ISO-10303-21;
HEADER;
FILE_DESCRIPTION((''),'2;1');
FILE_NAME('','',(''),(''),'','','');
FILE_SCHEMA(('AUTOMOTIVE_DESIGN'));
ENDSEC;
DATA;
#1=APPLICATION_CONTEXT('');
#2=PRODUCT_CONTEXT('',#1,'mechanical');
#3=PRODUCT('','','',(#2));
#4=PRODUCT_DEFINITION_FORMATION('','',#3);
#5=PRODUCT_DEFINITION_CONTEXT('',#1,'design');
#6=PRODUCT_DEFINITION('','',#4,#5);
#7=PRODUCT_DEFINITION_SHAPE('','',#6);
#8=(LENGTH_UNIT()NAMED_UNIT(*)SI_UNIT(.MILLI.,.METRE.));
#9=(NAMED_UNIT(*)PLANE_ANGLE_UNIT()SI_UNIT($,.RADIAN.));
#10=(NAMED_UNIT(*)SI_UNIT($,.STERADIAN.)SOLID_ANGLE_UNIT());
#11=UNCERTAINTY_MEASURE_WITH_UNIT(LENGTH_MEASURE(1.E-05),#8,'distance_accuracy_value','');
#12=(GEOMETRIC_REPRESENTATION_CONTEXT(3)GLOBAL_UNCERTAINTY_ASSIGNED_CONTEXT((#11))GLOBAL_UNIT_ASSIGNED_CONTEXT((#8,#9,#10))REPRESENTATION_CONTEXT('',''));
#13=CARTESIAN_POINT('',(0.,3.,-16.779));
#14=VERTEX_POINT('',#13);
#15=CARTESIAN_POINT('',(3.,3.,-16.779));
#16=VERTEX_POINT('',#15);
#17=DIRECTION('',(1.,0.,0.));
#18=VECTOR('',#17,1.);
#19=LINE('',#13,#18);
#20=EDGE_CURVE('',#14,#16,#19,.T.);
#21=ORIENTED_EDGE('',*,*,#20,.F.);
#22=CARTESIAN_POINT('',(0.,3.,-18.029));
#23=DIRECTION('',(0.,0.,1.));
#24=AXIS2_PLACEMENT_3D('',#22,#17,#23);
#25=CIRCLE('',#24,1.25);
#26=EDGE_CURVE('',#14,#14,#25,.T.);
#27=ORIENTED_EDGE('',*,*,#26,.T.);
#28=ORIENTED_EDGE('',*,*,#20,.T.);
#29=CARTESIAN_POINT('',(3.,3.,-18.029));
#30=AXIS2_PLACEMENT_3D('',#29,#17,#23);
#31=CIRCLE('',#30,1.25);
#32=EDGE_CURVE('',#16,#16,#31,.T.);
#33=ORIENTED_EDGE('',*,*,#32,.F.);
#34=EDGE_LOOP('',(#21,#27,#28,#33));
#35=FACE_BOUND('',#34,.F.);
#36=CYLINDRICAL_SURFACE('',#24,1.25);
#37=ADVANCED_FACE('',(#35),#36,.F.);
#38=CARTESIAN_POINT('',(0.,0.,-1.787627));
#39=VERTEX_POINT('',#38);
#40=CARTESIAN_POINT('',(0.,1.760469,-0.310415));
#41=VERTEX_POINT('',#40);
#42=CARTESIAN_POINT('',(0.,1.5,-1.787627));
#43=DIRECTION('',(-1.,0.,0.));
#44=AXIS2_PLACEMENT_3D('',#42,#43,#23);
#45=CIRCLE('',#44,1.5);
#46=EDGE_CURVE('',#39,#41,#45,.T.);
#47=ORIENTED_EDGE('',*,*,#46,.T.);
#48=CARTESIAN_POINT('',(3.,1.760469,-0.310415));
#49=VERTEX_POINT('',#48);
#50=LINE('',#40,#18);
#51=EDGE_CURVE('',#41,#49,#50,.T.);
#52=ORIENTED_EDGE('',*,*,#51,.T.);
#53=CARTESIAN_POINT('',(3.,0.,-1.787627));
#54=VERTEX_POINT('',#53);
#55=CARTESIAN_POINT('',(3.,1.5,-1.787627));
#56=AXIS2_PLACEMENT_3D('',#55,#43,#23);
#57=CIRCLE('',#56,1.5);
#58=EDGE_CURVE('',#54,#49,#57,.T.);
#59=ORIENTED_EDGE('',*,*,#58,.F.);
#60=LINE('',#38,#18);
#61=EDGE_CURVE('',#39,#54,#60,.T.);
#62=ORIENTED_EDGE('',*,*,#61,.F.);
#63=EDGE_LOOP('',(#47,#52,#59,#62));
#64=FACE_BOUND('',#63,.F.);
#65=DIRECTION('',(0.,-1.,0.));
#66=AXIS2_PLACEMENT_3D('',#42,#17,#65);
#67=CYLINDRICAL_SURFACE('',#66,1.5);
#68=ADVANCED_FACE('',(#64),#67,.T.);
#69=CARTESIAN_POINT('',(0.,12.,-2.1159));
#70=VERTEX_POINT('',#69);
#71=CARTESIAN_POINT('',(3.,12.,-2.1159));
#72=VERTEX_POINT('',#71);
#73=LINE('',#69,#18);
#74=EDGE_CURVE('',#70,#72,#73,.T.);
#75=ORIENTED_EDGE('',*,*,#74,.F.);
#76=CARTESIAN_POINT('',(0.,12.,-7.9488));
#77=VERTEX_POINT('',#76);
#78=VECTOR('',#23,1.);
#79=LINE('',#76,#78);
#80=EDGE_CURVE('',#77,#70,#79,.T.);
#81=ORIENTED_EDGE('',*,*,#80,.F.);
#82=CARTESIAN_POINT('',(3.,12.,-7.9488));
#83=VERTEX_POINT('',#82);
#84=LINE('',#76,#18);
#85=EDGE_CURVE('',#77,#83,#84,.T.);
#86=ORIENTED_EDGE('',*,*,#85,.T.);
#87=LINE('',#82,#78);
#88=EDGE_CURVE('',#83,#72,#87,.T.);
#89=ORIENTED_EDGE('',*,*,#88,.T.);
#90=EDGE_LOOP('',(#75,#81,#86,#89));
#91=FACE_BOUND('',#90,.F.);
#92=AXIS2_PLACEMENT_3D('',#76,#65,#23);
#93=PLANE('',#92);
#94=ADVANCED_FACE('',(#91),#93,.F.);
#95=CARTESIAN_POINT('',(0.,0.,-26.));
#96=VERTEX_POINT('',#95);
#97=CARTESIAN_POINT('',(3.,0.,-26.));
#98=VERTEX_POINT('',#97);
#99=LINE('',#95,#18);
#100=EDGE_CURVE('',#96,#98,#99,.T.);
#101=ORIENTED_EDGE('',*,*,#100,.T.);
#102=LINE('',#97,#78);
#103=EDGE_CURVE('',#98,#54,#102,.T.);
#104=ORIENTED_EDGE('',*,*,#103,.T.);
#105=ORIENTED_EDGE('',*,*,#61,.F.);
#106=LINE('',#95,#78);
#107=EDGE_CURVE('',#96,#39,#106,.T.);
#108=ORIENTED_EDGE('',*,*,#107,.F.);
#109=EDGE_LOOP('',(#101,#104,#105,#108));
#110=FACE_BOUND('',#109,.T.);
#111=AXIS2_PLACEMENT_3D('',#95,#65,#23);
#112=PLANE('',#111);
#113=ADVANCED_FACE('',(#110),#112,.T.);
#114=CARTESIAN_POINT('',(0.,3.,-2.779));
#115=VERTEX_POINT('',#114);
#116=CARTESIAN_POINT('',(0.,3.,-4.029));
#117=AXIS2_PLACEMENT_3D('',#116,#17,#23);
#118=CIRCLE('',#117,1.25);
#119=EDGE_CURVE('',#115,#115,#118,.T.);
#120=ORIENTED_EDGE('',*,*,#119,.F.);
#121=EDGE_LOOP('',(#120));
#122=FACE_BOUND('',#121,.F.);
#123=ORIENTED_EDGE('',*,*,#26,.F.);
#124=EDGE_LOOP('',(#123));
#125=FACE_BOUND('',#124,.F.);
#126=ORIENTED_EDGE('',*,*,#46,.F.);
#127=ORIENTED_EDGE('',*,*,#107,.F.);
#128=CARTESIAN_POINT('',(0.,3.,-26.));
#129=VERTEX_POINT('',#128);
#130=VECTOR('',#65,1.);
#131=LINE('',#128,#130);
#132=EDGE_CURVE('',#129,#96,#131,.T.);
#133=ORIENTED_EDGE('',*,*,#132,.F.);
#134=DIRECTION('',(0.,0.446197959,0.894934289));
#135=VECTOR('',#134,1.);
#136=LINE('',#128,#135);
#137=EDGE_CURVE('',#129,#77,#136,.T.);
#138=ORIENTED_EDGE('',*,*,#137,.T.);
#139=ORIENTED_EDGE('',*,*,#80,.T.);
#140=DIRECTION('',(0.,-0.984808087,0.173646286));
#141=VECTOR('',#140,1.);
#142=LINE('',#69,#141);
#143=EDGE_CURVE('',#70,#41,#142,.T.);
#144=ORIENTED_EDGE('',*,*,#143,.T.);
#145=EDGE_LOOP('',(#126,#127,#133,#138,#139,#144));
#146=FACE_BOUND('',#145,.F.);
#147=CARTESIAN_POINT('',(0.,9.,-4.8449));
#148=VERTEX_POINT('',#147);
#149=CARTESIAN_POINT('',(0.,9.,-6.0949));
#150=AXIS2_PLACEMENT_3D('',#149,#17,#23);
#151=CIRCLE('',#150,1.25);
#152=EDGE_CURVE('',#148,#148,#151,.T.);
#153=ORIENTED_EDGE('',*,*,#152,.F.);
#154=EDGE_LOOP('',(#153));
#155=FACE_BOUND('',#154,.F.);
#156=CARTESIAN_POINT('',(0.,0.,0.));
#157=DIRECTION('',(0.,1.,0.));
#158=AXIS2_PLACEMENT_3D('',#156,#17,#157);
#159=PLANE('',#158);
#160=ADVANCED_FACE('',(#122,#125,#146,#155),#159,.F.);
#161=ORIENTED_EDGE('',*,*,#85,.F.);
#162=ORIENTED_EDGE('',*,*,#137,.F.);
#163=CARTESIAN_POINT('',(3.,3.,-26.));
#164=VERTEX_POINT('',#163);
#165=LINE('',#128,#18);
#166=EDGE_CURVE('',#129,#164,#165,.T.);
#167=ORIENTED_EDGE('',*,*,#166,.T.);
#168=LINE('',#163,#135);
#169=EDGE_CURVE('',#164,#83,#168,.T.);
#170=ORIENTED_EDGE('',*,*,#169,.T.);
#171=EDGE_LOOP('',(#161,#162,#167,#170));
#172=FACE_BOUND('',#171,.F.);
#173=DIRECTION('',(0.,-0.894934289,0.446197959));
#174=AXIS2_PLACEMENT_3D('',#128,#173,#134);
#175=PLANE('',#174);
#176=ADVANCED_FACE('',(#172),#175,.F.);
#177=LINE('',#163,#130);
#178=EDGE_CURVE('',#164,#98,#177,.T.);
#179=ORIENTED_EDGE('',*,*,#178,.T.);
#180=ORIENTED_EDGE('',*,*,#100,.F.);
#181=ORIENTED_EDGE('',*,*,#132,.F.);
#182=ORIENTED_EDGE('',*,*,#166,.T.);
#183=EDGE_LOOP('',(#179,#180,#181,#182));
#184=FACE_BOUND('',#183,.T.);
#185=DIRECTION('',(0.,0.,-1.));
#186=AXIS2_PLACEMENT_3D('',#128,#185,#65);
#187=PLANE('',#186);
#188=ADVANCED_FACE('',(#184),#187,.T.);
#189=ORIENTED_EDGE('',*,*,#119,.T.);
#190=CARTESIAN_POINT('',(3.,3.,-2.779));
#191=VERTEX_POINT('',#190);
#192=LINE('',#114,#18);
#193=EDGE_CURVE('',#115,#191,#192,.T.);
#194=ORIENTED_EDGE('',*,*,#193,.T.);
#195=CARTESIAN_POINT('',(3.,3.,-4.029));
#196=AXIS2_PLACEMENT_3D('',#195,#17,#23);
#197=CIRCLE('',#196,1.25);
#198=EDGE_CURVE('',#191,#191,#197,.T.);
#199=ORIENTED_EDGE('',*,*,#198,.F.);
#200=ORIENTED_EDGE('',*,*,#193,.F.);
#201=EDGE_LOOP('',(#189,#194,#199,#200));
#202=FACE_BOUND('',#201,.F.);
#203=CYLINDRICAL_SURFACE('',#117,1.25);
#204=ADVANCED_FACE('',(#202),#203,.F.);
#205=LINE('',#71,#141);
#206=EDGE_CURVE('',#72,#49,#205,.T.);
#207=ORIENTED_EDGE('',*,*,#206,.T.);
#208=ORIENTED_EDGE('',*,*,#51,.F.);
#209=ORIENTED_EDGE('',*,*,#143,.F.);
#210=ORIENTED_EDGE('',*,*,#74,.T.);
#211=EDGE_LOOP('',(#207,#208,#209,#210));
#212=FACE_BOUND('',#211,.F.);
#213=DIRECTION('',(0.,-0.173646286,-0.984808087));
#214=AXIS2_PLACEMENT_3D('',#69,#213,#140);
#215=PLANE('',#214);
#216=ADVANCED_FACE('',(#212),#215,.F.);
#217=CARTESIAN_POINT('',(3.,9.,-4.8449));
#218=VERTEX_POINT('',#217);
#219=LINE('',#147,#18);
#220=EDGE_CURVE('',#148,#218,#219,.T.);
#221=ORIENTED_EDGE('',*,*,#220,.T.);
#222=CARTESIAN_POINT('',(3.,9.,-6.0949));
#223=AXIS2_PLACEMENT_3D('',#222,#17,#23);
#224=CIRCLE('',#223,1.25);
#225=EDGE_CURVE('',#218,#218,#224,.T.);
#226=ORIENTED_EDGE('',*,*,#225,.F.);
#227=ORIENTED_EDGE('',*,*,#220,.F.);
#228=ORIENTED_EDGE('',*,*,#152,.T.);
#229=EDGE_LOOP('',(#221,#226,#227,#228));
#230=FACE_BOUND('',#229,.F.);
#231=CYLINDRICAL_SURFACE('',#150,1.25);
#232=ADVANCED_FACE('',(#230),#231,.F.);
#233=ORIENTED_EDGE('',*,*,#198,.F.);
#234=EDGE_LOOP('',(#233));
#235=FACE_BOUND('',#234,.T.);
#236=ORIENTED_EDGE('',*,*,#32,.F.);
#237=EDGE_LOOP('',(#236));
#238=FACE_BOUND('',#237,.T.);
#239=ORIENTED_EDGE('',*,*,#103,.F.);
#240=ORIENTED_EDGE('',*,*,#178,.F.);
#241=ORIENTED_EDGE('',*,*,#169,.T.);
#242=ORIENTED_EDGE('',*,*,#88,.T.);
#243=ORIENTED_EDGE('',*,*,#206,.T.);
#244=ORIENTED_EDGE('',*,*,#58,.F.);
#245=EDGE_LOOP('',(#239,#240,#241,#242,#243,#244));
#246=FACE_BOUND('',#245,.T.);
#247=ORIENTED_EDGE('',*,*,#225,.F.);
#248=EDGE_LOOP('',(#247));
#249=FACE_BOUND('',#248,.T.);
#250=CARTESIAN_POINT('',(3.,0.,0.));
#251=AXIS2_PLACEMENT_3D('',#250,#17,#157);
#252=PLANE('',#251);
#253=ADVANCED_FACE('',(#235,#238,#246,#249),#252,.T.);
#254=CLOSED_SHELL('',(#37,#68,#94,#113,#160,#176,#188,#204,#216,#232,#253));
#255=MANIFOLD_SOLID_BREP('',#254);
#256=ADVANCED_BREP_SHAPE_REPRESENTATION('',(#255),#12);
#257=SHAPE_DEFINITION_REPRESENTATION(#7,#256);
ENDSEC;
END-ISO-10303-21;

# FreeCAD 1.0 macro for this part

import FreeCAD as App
import Part
import Sketcher

V = App.Vector
Q = App.Units.Quantity


def edges_at(feature, points):
    """Names of the edges that pass closest to the given points."""
    edges = feature.Shape.Edges
    near = lambda p: min(range(len(edges)), key=lambda i: edges[i].distToShape(Part.Vertex(*p))[0])
    return sorted({f"Edge{near(p) + 1}" for p in points})


def add_polygon(sketch, points):
    """Adds a closed chain of lines whose ends are joined by coincident constraints."""
    first, n = sketch.GeometryCount, len(points)
    for a, b in zip(points, points[1:] + points[:1]):
        sketch.addGeometry(Part.LineSegment(App.Vector(*a, 0), App.Vector(*b, 0)), False)
    for i in range(n):
        sketch.addConstraint(Sketcher.Constraint("Coincident", first + i, 2, first + (i + 1) % n, 1))

doc = App.newDocument("Part")
body = doc.addObject("PartDesign::Body", "Body")

# Sketch on YZ plane
sketch1 = body.newObject("Sketcher::SketchObject", "Sketch")
sketch1.AttachmentSupport = (doc.getObject("YZ_Plane"), [""])
sketch1.MapMode = "FlatFace"
add_polygon(sketch1, [(0, -26), (3, -26), (12, -7.9), (12, -2.1), (0, 0)])  # lines 0-4
sketch1.addConstraint([
    Sketcher.Constraint("Horizontal", 0),
    Sketcher.Constraint("Vertical", 2),
    Sketcher.Constraint("Vertical", 4),
    Sketcher.Constraint("Coincident", 3, 2, -1, 1),
    Sketcher.Constraint("DistanceX", 0, 1, 0, 2, 3.0),
    Sketcher.Constraint("DistanceY", 4, 2, 4, 1, 26.0),
    Sketcher.Constraint("DistanceX", -1, 1, 1, 2, 12.0),
    Sketcher.Constraint("Angle", 3, Q("170 deg")),
    Sketcher.Constraint("Angle", 1, Q("63.5 deg")),
])
pad1 = body.newObject("PartDesign::Pad", "Pad")
pad1.Profile = sketch1
pad1.Length = 3
doc.recompute()

fillet = body.newObject("PartDesign::Fillet", "Fillet")
fillet.Base = (pad1, edges_at(pad1, [(1.5, 0, 0)]))
fillet.Radius = 1.5

# Sketch on YZ plane
sketch2 = body.newObject("Sketcher::SketchObject", "Sketch001")
sketch2.AttachmentSupport = (doc.getObject("YZ_Plane"), [""])
sketch2.MapMode = "FlatFace"
sketch2.addGeometry([
    Part.Circle(V(3, -18, 0), V(0, 0, 1), 1.2),
    Part.Circle(V(3, -4, 0), V(0, 0, 1), 1.2),
    Part.Circle(V(9, -6.1, 0), V(0, 0, 1), 1.2),
], False)
sketch2.addConstraint([
    Sketcher.Constraint("Equal", 0, 1),
    Sketcher.Constraint("Equal", 1, 2),
    Sketcher.Constraint("Vertical", 0, 3, 1, 3),
    Sketcher.Constraint("Diameter", 0, 2.5),
    Sketcher.Constraint("DistanceX", -1, 1, 0, 3, 3.0),
    Sketcher.Constraint("DistanceX", -1, 1, 2, 3, 9.0),
    Sketcher.Constraint("DistanceY", 0, 3, 1, 3, 14.0),
    Sketcher.Constraint("DistanceY", 0, 3, -1, 1, 18.029),
    Sketcher.Constraint("DistanceY", 2, 3, -1, 1, 6.095),
])
doc.recompute()
hole = body.newObject("PartDesign::Hole", "Hole")
hole.Profile = sketch2
hole.ThreadType = "None"
hole.Diameter = 2.5
hole.DepthType = "ThroughAll"
hole.Reversed = True

doc.recompute()
